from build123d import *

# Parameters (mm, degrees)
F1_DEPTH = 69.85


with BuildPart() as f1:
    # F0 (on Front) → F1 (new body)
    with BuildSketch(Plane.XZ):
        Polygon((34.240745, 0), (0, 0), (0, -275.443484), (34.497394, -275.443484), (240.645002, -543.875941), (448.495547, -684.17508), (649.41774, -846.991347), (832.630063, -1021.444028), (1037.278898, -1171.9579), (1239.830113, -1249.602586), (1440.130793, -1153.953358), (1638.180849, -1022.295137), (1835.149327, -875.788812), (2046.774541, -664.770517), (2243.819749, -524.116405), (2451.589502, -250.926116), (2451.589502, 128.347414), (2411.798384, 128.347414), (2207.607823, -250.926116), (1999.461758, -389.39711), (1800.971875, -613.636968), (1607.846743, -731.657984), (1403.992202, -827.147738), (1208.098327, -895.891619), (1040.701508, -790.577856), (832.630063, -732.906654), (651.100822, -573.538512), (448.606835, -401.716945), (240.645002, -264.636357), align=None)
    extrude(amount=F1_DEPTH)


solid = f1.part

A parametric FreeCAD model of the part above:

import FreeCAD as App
import Part
import Sketcher
Q = App.Units.Quantity


def add_polygon(sketch, points):
    """Adds a closed chain of lines whose ends are joined by coincident constraints."""
    first, n = sketch.GeometryCount, len(points)
    for a, b in zip(points, points[1:] + points[:1]):
        sketch.addGeometry(Part.LineSegment(App.Vector(*a, 0), App.Vector(*b, 0)), False)
    for i in range(n):
        sketch.addConstraint(Sketcher.Constraint("Coincident", first + i, 2, first + (i + 1) % n, 1))

doc = App.newDocument("Part")
params = doc.addObject("Spreadsheet::Sheet", "Params")
for row, (alias, value) in enumerate([
    ("pad1_length", "2.75 in"),
], start=1):
    params.set(f"A{row}", alias)
    params.set(f"B{row}", "=" + value)
    params.setAlias(f"B{row}", alias)

body = doc.addObject("PartDesign::Body", "Body")

# Sketch on XZ plane
sketch1 = body.newObject("Sketcher::SketchObject", "Sketch")
sketch1.AttachmentSupport = (doc.getObject("XZ_Plane"), [""])
sketch1.MapMode = "FlatFace"
add_polygon(sketch1, [(34, 0), (0, 0), (0, -275), (34, -275), (241, -544), (448, -684), (649, -847), (833, -1021), (1037, -1172), (1240, -1250), (1440, -1154), (1638, -1022), (1835, -876), (2047, -665), (2244, -524), (2452, -251), (2452, 128), (2412, 128), (2208, -251), (1999, -389), (1801, -614), (1608, -732), (1404, -827), (1208, -896), (1041, -791), (833, -733), (651, -574), (449, -402), (241, -265)])  # lines 0-28
sketch1.addConstraint([
    Sketcher.Constraint("Horizontal", 0),
    Sketcher.Constraint("Vertical", 1),
    Sketcher.Constraint("Horizontal", 2),
    Sketcher.Constraint("Vertical", 15),
    Sketcher.Constraint("Horizontal", 16),
    Sketcher.Constraint("Coincident", 0, 2, -1, 1),
    Sketcher.Constraint("Horizontal", 14, 2, 17, 2),
    Sketcher.Constraint("Vertical", 6, 2, 24, 2),
    Sketcher.Constraint("Vertical", 3, 2, 27, 2),
    Sketcher.Constraint("DistanceY", 6, 2, 2, 2, Q("29.3701002 in")),
    Sketcher.Constraint("DistanceX", 8, 2, 10, 2, Q("15.6830998 in")),
    Sketcher.Constraint("Distance", 12, Q("298.854399 mm")),
    Sketcher.Constraint("Distance", 14, Q("343.2218 mm")),
    Sketcher.Constraint("Distance", 18, Q("249.998001 mm")),
    Sketcher.Constraint("DistanceY", 15, 1, 15, 2, Q("379.27353 mm")),
    Sketcher.Constraint("DistanceX", -1, 1, 3, 2, Q("240.645002 mm")),
    Sketcher.Constraint("DistanceX", -1, 1, 7, 2, Q("1037.278898 mm")),
    Sketcher.Constraint("DistanceY", 7, 2, -1, 1, Q("1171.9579 mm")),
    Sketcher.Constraint("DistanceX", -1, 1, 14, 2, Q("2451.589502 mm")),
    Sketcher.Constraint("DistanceX", -1, 1, 21, 2, Q("1403.992202 mm")),
    Sketcher.Constraint("DistanceX", 10, 2, 13, 2, Q("605.6389 mm")),
    Sketcher.Constraint("DistanceY", 12, 2, 14, 2, Q("413.844401 mm")),
    Sketcher.Constraint("DistanceY", 11, 2, 18, 2, Q("486.391702 mm")),
    Sketcher.Constraint("DistanceY", 10, 2, 21, 2, Q("195.147399 mm")),
    Sketcher.Constraint("DistanceY", 23, 2, 24, 2, Q("57.671202 mm")),
    Sketcher.Constraint("Distance", 4, Q("250.770208 mm")),
    Sketcher.Constraint("Distance", 8, Q("216.92324 mm")),
    Sketcher.Constraint("Distance", 17, Q("430.746092 mm")),
    Sketcher.Constraint("Distance", 19, Q("299.46911 mm")),
    Sketcher.Constraint("Distance", 21, Q("225.11101 mm")),
    Sketcher.Constraint("Distance", 22, Q("207.605711 mm")),
    Sketcher.Constraint("Distance", 23, Q("197.769269 mm")),
    Sketcher.Constraint("Distance", 24, Q("215.915941 mm")),
    Sketcher.Constraint("Distance", 25, Q("241.559661 mm")),
    Sketcher.Constraint("Distance", 27, Q("249.076718 mm")),
    Sketcher.Constraint("Distance", 28, Q("335.611559 mm")),
    Sketcher.Constraint("DistanceX", 0, 2, 0, 1, Q("34.240745 mm")),
    Sketcher.Constraint("DistanceX", 2, 1, 2, 2, Q("34.497394 mm")),
    Sketcher.Constraint("DistanceX", 16, 2, 16, 1, Q("39.791118 mm")),
    Sketcher.Constraint("DistanceY", 1, 2, 1, 1, Q("275.443484 mm")),
    Sketcher.Constraint("DistanceY", 3, 2, -1, 1, Q("543.875941 mm")),
    Sketcher.Constraint("DistanceY", 4, 2, -1, 1, Q("684.17508 mm")),
    Sketcher.Constraint("DistanceX", -1, 1, 5, 2, Q("649.41774 mm")),
    Sketcher.Constraint("DistanceY", 9, 2, -1, 1, Q("1153.953358 mm")),
    Sketcher.Constraint("DistanceX", -1, 1, 10, 2, Q("1638.180849 mm")),
    Sketcher.Constraint("DistanceY", 11, 2, -1, 1, Q("875.788812 mm")),
    Sketcher.Constraint("DistanceX", -1, 1, 12, 2, Q("2046.774541 mm")),
    Sketcher.Constraint("DistanceX", -1, 1, 18, 2, Q("1999.461758 mm")),
    Sketcher.Constraint("DistanceY", 19, 2, -1, 1, Q("613.636968 mm")),
    Sketcher.Constraint("DistanceY", 21, 2, -1, 1, Q("827.147738 mm")),
    Sketcher.Constraint("DistanceY", 22, 2, -1, 1, Q("895.891619 mm")),
    Sketcher.Constraint("DistanceX", -1, 1, 23, 2, Q("1040.701508 mm")),
    Sketcher.Constraint("DistanceX", -1, 1, 25, 2, Q("651.100822 mm")),
    Sketcher.Constraint("DistanceY", 6, 2, 5, 2, Q("174.452681 mm")),
    Sketcher.Constraint("DistanceX", 8, 2, 9, 2, Q("200.30068 mm")),
    Sketcher.Constraint("DistanceX", 20, 2, 19, 2, Q("193.125132 mm")),
    Sketcher.Constraint("DistanceX", 4, 2, 26, 2, Q("0.111288 mm")),
])
pad1 = body.newObject("PartDesign::Pad", "Pad")
pad1.Profile = sketch1
pad1.setExpression("Length", "Params.pad1_length")

doc.recompute()
